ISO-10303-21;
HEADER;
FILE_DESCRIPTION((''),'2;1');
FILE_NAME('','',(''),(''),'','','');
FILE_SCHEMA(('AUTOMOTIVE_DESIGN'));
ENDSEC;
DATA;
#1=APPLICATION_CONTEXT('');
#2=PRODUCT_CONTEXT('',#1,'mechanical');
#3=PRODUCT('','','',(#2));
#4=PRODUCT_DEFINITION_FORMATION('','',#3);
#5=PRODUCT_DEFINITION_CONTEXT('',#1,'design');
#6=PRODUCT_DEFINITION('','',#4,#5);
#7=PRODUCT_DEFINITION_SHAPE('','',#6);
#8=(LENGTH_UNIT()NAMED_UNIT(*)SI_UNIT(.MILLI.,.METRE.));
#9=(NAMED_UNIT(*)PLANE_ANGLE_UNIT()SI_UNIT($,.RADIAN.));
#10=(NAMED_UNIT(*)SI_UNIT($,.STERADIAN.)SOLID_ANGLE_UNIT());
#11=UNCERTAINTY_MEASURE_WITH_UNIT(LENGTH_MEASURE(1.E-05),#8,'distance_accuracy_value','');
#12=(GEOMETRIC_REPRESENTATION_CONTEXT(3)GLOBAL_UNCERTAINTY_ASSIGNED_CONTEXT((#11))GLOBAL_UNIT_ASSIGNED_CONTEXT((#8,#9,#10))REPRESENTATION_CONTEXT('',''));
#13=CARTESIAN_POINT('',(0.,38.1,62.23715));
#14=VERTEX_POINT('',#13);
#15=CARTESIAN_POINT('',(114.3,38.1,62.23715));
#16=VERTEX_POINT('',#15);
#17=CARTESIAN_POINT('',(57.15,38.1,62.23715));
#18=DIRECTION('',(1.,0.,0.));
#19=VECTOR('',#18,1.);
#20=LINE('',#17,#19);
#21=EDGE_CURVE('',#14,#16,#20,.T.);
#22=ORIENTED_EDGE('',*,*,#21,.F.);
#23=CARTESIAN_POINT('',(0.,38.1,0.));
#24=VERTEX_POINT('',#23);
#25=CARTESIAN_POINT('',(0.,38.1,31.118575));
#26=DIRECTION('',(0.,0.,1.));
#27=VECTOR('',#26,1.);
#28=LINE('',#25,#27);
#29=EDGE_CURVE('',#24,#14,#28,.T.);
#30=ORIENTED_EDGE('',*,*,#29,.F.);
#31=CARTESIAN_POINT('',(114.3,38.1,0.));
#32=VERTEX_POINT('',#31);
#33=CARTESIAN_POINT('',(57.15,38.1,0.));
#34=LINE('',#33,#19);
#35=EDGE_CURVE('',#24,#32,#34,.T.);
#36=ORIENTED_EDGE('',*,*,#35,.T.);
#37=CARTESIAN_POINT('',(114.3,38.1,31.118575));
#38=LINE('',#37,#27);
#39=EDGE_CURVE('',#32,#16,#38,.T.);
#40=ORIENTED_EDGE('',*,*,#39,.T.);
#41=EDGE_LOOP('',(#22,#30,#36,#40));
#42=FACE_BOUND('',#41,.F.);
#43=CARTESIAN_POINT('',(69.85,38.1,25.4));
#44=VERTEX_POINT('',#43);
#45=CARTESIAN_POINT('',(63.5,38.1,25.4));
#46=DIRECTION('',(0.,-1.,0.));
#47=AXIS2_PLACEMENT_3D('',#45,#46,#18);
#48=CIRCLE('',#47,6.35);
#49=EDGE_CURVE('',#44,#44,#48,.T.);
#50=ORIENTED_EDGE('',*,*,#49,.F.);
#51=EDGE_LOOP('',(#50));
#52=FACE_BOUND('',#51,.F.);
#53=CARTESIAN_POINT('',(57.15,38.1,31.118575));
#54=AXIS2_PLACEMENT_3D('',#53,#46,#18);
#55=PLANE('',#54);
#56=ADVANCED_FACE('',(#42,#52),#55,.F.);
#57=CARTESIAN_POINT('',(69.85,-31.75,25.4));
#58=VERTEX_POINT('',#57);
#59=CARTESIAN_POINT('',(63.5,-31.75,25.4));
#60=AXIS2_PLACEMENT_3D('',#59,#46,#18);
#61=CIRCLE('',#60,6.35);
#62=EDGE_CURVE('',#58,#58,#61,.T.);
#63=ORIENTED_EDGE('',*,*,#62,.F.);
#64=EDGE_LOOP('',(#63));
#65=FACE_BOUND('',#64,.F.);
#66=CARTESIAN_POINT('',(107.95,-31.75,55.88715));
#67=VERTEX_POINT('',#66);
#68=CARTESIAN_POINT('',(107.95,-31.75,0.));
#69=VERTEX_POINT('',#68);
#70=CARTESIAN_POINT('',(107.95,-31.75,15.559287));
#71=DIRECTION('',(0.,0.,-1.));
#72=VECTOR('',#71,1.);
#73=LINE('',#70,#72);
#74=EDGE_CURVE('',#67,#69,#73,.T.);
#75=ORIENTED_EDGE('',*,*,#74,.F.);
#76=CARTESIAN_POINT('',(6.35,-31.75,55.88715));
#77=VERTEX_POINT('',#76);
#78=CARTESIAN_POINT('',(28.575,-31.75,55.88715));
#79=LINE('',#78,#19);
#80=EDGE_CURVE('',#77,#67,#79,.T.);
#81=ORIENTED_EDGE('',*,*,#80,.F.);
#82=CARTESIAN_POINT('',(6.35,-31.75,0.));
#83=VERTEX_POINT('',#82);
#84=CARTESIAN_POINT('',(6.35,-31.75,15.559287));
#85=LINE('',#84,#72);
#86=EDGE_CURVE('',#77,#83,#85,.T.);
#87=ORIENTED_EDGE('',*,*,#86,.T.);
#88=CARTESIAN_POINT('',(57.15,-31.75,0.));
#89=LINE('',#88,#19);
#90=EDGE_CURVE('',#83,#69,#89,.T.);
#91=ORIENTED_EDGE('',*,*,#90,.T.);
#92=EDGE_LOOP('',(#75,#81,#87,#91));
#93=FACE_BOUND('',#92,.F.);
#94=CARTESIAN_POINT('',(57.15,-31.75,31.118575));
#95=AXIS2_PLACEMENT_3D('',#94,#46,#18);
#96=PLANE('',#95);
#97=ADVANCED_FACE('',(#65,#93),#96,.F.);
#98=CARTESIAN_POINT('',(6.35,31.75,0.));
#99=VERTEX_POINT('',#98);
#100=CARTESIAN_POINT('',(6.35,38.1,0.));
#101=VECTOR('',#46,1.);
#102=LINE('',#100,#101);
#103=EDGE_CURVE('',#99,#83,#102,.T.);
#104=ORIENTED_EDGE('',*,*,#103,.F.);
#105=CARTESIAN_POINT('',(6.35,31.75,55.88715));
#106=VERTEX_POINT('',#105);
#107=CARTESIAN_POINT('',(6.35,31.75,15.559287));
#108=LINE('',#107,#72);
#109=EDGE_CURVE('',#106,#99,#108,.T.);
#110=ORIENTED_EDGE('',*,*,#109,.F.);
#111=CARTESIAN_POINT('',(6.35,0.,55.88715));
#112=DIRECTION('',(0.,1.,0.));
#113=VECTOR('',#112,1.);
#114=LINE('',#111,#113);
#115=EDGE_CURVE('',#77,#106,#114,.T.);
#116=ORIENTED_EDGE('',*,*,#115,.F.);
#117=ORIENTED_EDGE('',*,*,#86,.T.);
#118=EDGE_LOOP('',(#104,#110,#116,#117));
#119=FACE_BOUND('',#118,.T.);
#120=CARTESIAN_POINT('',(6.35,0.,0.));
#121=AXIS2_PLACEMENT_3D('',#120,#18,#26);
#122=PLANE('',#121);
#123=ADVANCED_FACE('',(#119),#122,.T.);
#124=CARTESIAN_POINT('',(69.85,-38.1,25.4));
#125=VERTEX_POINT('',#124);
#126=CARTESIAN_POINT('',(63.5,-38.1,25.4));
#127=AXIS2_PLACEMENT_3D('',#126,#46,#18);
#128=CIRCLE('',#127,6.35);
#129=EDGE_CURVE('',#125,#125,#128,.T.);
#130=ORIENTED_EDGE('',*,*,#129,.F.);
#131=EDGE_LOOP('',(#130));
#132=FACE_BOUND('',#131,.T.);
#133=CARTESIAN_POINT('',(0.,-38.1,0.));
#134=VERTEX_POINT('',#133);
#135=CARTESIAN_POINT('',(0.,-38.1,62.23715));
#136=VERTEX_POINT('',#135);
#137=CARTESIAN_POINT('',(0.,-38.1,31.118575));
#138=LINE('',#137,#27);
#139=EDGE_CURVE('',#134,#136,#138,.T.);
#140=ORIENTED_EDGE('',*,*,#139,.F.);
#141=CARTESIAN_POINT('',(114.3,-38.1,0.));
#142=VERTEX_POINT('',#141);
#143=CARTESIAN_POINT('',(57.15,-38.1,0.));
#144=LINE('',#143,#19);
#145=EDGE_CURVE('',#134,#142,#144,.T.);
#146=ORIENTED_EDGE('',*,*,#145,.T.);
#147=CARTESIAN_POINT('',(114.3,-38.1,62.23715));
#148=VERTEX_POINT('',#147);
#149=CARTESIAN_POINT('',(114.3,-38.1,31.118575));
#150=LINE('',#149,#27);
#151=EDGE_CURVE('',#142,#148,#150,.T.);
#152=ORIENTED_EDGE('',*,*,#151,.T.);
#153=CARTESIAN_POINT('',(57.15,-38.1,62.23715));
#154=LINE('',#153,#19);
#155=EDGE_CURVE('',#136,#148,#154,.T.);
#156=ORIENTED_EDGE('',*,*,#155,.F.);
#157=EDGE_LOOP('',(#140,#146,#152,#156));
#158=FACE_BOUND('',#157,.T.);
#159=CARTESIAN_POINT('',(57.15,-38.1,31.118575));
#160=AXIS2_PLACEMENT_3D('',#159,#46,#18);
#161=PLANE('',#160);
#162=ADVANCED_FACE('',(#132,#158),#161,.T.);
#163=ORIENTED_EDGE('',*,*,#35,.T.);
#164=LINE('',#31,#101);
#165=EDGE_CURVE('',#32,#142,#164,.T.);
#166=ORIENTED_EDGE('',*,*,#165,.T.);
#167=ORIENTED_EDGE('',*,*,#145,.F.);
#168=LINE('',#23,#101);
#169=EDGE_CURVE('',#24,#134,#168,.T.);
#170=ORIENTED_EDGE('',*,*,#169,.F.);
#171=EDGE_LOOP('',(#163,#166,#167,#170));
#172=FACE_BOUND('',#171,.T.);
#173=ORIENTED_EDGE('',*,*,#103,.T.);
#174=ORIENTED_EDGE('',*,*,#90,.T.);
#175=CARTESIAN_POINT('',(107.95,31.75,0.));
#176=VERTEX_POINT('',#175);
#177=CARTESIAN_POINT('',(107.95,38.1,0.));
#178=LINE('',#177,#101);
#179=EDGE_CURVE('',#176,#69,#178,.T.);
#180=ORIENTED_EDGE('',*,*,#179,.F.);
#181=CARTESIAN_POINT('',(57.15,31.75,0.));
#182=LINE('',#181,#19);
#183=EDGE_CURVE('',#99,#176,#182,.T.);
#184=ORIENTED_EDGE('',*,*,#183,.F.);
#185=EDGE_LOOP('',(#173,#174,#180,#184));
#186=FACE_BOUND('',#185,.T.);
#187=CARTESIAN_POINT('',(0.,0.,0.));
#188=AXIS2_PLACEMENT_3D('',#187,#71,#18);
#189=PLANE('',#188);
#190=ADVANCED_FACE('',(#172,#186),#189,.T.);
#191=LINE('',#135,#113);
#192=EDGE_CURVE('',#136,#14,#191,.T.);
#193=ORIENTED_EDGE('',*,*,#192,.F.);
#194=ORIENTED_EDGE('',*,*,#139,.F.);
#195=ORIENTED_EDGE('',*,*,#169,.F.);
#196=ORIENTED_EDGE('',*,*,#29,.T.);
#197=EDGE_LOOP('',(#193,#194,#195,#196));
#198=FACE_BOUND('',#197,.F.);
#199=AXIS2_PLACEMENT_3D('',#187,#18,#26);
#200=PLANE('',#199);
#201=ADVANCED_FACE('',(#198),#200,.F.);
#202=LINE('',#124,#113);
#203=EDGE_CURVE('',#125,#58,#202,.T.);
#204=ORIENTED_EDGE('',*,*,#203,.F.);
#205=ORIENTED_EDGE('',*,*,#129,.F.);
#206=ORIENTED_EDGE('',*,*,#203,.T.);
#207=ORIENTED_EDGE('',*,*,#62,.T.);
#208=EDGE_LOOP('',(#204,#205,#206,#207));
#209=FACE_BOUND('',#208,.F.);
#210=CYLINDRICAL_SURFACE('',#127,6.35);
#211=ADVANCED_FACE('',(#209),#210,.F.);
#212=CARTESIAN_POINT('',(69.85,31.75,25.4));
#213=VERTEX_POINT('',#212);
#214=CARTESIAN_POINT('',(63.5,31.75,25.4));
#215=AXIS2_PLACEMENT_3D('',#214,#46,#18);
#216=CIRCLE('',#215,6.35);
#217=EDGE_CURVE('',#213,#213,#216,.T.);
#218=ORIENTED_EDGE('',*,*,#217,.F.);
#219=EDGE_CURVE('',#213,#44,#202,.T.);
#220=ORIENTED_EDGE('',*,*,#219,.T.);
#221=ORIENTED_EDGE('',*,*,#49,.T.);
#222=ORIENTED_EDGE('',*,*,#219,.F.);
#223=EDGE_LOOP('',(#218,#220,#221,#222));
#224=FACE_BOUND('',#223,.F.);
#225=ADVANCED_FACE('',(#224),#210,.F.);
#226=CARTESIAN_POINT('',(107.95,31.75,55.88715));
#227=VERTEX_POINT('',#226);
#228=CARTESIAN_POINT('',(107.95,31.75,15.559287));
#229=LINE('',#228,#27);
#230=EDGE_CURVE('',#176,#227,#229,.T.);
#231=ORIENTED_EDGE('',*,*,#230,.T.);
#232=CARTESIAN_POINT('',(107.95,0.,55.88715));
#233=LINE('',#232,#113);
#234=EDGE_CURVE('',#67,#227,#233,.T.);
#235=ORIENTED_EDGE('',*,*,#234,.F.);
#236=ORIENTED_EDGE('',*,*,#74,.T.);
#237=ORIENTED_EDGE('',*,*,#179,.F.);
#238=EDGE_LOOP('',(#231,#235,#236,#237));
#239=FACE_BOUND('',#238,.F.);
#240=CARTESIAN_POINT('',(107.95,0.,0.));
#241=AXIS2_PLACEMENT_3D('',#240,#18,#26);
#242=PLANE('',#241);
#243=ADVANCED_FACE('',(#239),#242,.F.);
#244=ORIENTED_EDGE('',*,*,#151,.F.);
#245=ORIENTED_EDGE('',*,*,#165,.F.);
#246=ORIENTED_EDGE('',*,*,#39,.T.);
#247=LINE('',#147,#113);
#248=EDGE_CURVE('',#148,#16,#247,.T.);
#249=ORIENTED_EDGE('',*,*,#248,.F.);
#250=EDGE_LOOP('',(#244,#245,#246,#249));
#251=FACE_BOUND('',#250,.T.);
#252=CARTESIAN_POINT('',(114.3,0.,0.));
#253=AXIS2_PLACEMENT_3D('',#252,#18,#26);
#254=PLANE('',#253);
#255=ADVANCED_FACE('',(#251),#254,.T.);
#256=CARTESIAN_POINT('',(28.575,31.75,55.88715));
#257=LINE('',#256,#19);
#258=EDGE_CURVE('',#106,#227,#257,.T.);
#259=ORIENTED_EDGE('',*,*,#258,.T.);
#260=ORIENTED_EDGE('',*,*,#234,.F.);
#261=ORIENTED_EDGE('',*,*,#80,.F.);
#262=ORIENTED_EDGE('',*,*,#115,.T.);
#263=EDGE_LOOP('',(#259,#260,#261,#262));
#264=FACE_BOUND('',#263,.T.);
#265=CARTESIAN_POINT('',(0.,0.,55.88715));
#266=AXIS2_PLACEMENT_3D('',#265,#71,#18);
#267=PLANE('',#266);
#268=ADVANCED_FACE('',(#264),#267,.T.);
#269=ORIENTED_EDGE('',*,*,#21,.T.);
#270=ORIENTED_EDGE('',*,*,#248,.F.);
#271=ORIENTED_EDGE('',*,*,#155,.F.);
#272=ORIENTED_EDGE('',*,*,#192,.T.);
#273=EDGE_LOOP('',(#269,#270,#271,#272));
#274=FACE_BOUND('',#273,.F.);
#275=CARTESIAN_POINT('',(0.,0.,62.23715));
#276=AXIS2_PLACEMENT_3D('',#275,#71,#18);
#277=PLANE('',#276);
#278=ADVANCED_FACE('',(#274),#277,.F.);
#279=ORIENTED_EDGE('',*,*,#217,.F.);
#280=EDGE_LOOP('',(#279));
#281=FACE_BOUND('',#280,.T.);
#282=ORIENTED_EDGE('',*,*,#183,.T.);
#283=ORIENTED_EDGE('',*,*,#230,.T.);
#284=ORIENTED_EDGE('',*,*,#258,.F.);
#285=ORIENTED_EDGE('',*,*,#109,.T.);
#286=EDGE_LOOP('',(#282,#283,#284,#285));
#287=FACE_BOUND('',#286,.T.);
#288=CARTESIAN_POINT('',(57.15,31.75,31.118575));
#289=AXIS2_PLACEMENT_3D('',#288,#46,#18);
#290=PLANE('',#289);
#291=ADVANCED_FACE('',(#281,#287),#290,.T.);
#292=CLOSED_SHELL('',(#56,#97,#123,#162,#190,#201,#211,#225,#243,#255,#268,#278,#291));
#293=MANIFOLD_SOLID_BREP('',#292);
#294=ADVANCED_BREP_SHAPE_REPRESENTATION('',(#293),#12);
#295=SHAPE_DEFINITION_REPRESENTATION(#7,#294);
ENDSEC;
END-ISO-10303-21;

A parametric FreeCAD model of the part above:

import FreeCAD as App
import Part
import Sketcher

V = App.Vector
Q = App.Units.Quantity


def faces_at(feature, points):
    """Names of the faces that lie closest to the given points."""
    faces = feature.Shape.Faces
    near = lambda p: min(range(len(faces)), key=lambda i: faces[i].distToShape(Part.Vertex(*p))[0])
    return sorted({f"Face{near(p) + 1}" for p in points})

doc = App.newDocument("Part")
body = doc.addObject("PartDesign::Body", "Body")

sketch1 = body.newObject("Sketcher::SketchObject", "Sketch")
sketch1.AttachmentSupport = (doc.getObject("XZ_Plane"), [""])
sketch1.MapMode = "FlatFace"
sketch1.addGeometry(Part.LineSegment(V(0, 62, 0), V(0, 0, 0)), False)
sketch1.addGeometry(Part.LineSegment(V(0, 0, 0), V(114, 0, 0)), False)
sketch1.addGeometry(Part.LineSegment(V(114, 0, 0), V(114, 62, 0)), False)
sketch1.addGeometry(Part.LineSegment(V(114, 62, 0), V(0, 62, 0)), False)
sketch1.addConstraint(Sketcher.Constraint("Coincident", 0, 2, 1, 1))
sketch1.addConstraint(Sketcher.Constraint("Coincident", 1, 2, 2, 1))
sketch1.addConstraint(Sketcher.Constraint("Coincident", 2, 2, 3, 1))
sketch1.addConstraint(Sketcher.Constraint("Coincident", 3, 2, 0, 1))
sketch1.addConstraint(Sketcher.Constraint("Vertical", 0))
sketch1.addConstraint(Sketcher.Constraint("Horizontal", 1))
sketch1.addConstraint(Sketcher.Constraint("Vertical", 2))
sketch1.addConstraint(Sketcher.Constraint("Horizontal", 3))
sketch1.addConstraint(Sketcher.Constraint("Coincident", 0, 2, -1, 1))
sketch1.addConstraint(Sketcher.Constraint("DistanceX", 1, 1, 1, 2, Q("4.5 in")))
sketch1.addConstraint(Sketcher.Constraint("DistanceY", 0, 2, 0, 1, 62.237151))
pad1 = body.newObject("PartDesign::Pad", "Pad")
pad1.Profile = sketch1
pad1.Length = Q("3 in")
pad1.Midplane = True
doc.recompute()

thickness = body.newObject("PartDesign::Thickness", "Thickness")
thickness.Base = (pad1, faces_at(pad1, [(57.15, 0, 0)]))
thickness.Value = Q("0.25 in")
thickness.Reversed = True
thickness.Join = "Arc"

sketch2 = body.newObject("Sketcher::SketchObject", "Sketch001")
sketch2.AttachmentSupport = (doc.getObject("XZ_Plane"), [""])
sketch2.MapMode = "FlatFace"
sketch2.AttachmentOffset = App.Placement(V(0, 0, 1.5 * 25.4), App.Rotation())
sketch2.addGeometry(Part.Circle(V(64, 25, 0), V(0, 0, 1), 6), False)
sketch2.addConstraint(Sketcher.Constraint("Diameter", 0, Q("0.5 in")))
sketch2.addConstraint(Sketcher.Constraint("DistanceY", -1, 1, 0, 3, Q("1 in")))
sketch2.addConstraint(Sketcher.Constraint("DistanceX", -1, 1, 0, 3, Q("2.5 in")))
pocket1 = body.newObject("PartDesign::Pocket", "Pocket")
pocket1.Profile = sketch2
pocket1.Type = "ThroughAll"

doc.recompute()
